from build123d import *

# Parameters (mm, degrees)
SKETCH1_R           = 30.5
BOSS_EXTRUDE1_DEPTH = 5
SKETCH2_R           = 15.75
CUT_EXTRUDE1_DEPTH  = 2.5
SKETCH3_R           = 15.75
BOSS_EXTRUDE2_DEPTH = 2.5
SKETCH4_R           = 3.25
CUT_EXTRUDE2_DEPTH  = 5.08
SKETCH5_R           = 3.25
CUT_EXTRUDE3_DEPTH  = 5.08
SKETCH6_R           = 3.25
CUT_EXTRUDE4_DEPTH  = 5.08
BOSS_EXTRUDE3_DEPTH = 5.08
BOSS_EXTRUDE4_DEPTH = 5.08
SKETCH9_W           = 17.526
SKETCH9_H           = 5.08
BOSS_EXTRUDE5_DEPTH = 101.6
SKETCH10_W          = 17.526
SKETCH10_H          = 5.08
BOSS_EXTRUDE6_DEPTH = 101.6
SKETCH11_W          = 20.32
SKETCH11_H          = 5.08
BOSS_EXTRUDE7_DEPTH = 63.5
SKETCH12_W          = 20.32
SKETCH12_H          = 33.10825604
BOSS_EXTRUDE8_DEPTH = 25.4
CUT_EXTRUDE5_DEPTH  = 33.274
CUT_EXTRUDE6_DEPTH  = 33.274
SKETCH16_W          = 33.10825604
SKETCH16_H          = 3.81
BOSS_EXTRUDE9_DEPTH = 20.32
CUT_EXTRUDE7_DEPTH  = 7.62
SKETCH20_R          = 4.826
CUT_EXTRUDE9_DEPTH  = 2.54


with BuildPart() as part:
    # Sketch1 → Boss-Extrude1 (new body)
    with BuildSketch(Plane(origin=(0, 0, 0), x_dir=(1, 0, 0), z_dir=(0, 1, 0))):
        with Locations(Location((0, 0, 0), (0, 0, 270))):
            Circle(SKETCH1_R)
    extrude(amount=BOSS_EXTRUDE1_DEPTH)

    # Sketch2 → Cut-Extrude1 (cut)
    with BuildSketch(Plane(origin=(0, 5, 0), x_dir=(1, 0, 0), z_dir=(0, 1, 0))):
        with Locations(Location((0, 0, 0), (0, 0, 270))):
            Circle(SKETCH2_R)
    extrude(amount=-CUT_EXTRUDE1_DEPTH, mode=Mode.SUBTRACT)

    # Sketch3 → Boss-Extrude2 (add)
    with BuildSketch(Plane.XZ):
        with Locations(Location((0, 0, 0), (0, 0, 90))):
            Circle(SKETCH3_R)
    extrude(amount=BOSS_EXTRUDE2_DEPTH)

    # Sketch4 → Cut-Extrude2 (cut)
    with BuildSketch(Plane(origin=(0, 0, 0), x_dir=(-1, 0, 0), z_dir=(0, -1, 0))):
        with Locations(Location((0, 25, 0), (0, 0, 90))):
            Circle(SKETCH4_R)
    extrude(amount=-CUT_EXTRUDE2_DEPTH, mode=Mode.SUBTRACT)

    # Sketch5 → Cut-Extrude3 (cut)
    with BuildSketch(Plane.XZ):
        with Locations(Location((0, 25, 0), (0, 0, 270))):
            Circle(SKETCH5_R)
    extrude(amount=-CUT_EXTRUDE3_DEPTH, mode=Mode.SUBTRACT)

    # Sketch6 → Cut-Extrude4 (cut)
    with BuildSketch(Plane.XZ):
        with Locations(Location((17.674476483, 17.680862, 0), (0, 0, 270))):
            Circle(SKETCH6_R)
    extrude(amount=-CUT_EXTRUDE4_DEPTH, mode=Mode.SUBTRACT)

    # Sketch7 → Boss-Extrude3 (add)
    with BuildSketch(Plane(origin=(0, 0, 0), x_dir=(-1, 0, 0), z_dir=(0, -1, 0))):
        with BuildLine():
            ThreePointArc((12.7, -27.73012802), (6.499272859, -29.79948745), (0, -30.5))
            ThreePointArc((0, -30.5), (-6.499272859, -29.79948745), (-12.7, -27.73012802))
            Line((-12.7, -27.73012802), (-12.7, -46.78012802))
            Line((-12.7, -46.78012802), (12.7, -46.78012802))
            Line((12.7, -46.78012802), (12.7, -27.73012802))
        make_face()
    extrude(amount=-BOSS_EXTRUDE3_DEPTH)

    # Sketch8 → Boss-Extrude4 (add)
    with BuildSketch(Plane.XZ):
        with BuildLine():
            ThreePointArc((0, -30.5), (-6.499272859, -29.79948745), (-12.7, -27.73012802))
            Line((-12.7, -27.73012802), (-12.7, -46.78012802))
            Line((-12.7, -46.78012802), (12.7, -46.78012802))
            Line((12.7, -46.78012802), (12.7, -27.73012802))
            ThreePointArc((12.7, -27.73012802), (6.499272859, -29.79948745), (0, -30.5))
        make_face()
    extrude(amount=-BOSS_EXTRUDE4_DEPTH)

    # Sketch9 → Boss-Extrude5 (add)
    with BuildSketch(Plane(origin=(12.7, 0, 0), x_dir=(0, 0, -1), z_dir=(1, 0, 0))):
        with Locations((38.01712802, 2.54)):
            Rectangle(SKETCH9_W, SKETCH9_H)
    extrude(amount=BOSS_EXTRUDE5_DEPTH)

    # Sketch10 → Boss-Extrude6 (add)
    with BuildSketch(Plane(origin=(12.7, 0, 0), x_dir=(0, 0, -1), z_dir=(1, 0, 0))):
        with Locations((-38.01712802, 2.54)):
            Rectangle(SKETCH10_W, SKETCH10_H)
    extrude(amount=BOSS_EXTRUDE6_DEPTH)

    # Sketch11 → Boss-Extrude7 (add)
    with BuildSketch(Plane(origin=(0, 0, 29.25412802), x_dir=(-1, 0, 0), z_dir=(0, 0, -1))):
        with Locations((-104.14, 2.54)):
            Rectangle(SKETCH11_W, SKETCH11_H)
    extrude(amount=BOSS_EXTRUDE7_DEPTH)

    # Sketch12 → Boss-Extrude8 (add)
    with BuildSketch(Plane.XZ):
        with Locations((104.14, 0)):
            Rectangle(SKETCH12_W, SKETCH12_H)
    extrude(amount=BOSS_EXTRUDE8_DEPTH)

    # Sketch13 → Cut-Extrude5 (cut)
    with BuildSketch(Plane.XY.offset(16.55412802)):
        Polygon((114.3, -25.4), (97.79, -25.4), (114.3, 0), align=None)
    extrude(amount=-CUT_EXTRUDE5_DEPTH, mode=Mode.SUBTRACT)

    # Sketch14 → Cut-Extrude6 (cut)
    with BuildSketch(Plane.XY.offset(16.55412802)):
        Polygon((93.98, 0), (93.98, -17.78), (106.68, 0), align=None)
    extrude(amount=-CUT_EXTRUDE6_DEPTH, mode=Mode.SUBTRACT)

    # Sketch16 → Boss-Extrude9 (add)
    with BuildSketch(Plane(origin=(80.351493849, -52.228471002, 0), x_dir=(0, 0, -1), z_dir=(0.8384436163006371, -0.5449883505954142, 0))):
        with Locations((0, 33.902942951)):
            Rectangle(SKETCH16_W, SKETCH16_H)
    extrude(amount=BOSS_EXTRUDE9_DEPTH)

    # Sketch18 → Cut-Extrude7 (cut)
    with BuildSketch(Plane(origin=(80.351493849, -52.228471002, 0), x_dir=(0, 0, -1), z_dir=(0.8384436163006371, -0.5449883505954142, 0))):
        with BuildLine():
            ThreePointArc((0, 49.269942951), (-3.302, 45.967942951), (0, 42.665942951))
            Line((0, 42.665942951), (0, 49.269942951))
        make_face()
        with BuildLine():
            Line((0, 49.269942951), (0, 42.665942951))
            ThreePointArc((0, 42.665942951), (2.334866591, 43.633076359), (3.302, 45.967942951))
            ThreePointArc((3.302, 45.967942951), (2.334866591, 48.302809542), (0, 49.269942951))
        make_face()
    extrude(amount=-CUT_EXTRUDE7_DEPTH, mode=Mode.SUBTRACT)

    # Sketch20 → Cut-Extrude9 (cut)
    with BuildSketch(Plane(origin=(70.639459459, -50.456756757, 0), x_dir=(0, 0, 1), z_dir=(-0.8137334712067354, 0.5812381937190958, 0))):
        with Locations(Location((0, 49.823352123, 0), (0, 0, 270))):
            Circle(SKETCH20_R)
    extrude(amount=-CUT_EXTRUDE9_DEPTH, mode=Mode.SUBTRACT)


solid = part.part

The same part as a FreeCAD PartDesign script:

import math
import FreeCAD as App
import Part
import Sketcher
from FreeCAD import Vector
Q = App.Units.Quantity


def add_polygon(sketch, points):
    """Adds a closed chain of lines whose ends are joined by coincident constraints."""
    first, n = sketch.GeometryCount, len(points)
    for a, b in zip(points, points[1:] + points[:1]):
        sketch.addGeometry(Part.LineSegment(App.Vector(*a, 0), App.Vector(*b, 0)), False)
    for i in range(n):
        sketch.addConstraint(Sketcher.Constraint("Coincident", first + i, 2, first + (i + 1) % n, 1))

doc = App.newDocument("Part")
params = doc.addObject("Spreadsheet::Sheet", "Params")
for row, (alias, value) in enumerate([
    ("pad1_length", "5 mm"),
    ("pocket1_length", "2.5 mm"),
    ("pad2_length", "2.5 mm"),
    ("pocket2_length", "0.2 in"),
    ("pocket3_length", "0.2 in"),
    ("pocket4_length", "0.2 in"),
    ("sketch7_width", "1 in"),
    ("sketch7_height", "0.75 in"),
    ("pad3_length", "0.2 in"),
    ("sketch8_width", "1 in"),
    ("sketch8_height", "0.75 in"),
    ("pad4_length", "0.2 in"),
    ("sketch9_width", "0.2 in"),
    ("sketch9_height", "0.69 in"),
    ("pad5_length", "4 in"),
    ("sketch10_width", "0.2 in"),
    ("sketch10_height", "0.69 in"),
    ("pad6_length", "4 in"),
    ("sketch11_width", "0.8 in"),
    ("sketch11_height", "0.2 in"),
    ("pad7_length", "2.5 in"),
    ("sketch12_width", "0.8 in"),
    ("pad8_length", "1 in"),
    ("sketch13_height", "1 in"),
    ("sketch13_width", "0.65 in"),
    ("pocket5_length", "1.31 in"),
    ("sketch14_width", "0.5 in"),
    ("sketch14_height", "0.7 in"),
    ("pocket6_length", "1.31 in"),
    ("sketch15_height", "0.15 in"),
    ("pad9_length", "0.8 in"),
    ("sketch16_radius", "0.13 in"),
    ("pocket7_length", "0.3 in"),
    ("sketch17_diameter", "0.38 in"),
    ("pocket8_length", "0.1 in"),
], start=1):
    params.set(f"A{row}", alias)
    params.set(f"B{row}", "=" + value)
    params.setAlias(f"B{row}", alias)

body = doc.addObject("PartDesign::Body", "Body")

# Sketch on XZ plane
sketch1 = body.newObject("Sketcher::SketchObject", "Sketch")
sketch1.AttachmentSupport = (doc.getObject("XZ_Plane"), [""])
sketch1.MapMode = "FlatFace"
sketch1.addGeometry(Part.Circle(Vector(0, 0, 0), Vector(0, 0, 1), 30.5), False)
sketch1.addConstraint([
    Sketcher.Constraint("Coincident", 0, 3, -1, 1),
    Sketcher.Constraint("Diameter", 0, Q("61 mm")),
])
pad1 = body.newObject("PartDesign::Pad", "Pad")
pad1.Profile = sketch1
pad1.setExpression("Length", "Params.pad1_length")
pad1.Reversed = True

# Sketch on XZ plane
sketch2 = body.newObject("Sketcher::SketchObject", "Sketch001")
sketch2.AttachmentSupport = (doc.getObject("XZ_Plane"), [""])
sketch2.MapMode = "FlatFace"
sketch2.AttachmentOffset = App.Placement(Vector(0, 0, -5), App.Rotation())
sketch2.addGeometry(Part.Circle(Vector(0, 0, 0), Vector(0, 0, 1), 15.75), False)
sketch2.addConstraint([
    Sketcher.Constraint("Coincident", 0, 3, -1, 1),
    Sketcher.Constraint("Diameter", 0, Q("31.5 mm")),
])
pocket1 = body.newObject("PartDesign::Pocket", "Pocket")
pocket1.Profile = sketch2
pocket1.setExpression("Length", "Params.pocket1_length")
pocket1.Reversed = True

# Sketch on XZ plane
sketch3 = body.newObject("Sketcher::SketchObject", "Sketch002")
sketch3.AttachmentSupport = (doc.getObject("XZ_Plane"), [""])
sketch3.MapMode = "FlatFace"
sketch3.addGeometry(Part.Circle(Vector(0, 0, 0), Vector(0, 0, 1), 15.75), False)
sketch3.addConstraint([
    Sketcher.Constraint("Coincident", 0, 3, -1, 1),
    Sketcher.Constraint("Diameter", 0, Q("31.5 mm")),
])
pad2 = body.newObject("PartDesign::Pad", "Pad001")
pad2.Profile = sketch3
pad2.setExpression("Length", "Params.pad2_length")

# Sketch on XZ plane
sketch4 = body.newObject("Sketcher::SketchObject", "Sketch003")
sketch4.AttachmentSupport = (doc.getObject("XZ_Plane"), [""])
sketch4.MapMode = "FlatFace"
sketch4.addGeometry(Part.Circle(Vector(0, -25, 0), Vector(0, 0, 1), 3.25), False)
sketch4.addConstraint([
    Sketcher.Constraint("PointOnObject", 0, 3, -2),
    Sketcher.Constraint("Diameter", 0, Q("6.5 mm")),
    Sketcher.Constraint("DistanceY", 0, 3, -1, 1, Q("25 mm")),
])
pocket2 = body.newObject("PartDesign::Pocket", "Pocket001")
pocket2.Profile = sketch4
pocket2.setExpression("Length", "Params.pocket2_length")

# Sketch on XZ plane
sketch5 = body.newObject("Sketcher::SketchObject", "Sketch004")
sketch5.AttachmentSupport = (doc.getObject("XZ_Plane"), [""])
sketch5.MapMode = "FlatFace"
sketch5.addGeometry(Part.Circle(Vector(0, 25, 0), Vector(0, 0, 1), 3.25), False)
sketch5.addConstraint([
    Sketcher.Constraint("PointOnObject", 0, 3, -2),
    Sketcher.Constraint("Diameter", 0, Q("6.5 mm")),
    Sketcher.Constraint("DistanceY", -1, 1, 0, 3, Q("25 mm")),
])
pocket3 = body.newObject("PartDesign::Pocket", "Pocket002")
pocket3.Profile = sketch5
pocket3.setExpression("Length", "Params.pocket3_length")

# Sketch on XZ plane
sketch6 = body.newObject("Sketcher::SketchObject", "Sketch005")
sketch6.AttachmentSupport = (doc.getObject("XZ_Plane"), [""])
sketch6.MapMode = "FlatFace"
sketch6.addGeometry(Part.Circle(Vector(17.674476, 17.680862, 0), Vector(0, 0, 1), 3.25), False)
sketch6.addConstraint([
    Sketcher.Constraint("Diameter", 0, Q("6.5 mm")),
    Sketcher.Constraint("DistanceX", -1, 1, 0, 3, Q("17.674476 mm")),
    Sketcher.Constraint("DistanceY", -1, 1, 0, 3, Q("17.680862 mm")),
])
pocket4 = body.newObject("PartDesign::Pocket", "Pocket003")
pocket4.Profile = sketch6
pocket4.setExpression("Length", "Params.pocket4_length")

# Sketch on XZ plane
sketch7 = body.newObject("Sketcher::SketchObject", "Sketch006")
sketch7.AttachmentSupport = (doc.getObject("XZ_Plane"), [""])
sketch7.MapMode = "FlatFace"
sketch7.addGeometry([
    Part.ArcOfCircle(Part.Circle(Vector(0, 0, 0), Vector(0, 0, 1), 30.5), math.radians(90), math.radians(114.607099)),  # 0
    Part.ArcOfCircle(Part.Circle(Vector(0, 0, 0), Vector(0, 0, 1), 30.5), math.radians(65.392901), math.radians(90)),  # 1
    Part.LineSegment(Vector(12.7, 27.730128, 0), Vector(12.7, 46.780128, 0)),  # 2
    Part.LineSegment(Vector(12.7, 46.780128, 0), Vector(-12.7, 46.780128, 0)),  # 3
    Part.LineSegment(Vector(-12.7, 46.780128, 0), Vector(-12.7, 27.730128, 0)),  # 4
], False)
sketch7.addConstraint([
    Sketcher.Constraint("Tangent", 0, 1, 1, 2),
    Sketcher.Constraint("Coincident", 1, 1, 2, 1),
    Sketcher.Constraint("Coincident", 2, 2, 3, 1),
    Sketcher.Constraint("Coincident", 3, 2, 4, 1),
    Sketcher.Constraint("Coincident", 4, 2, 0, 2),
    Sketcher.Constraint("Vertical", 2),
    Sketcher.Constraint("Horizontal", 3),
    Sketcher.Constraint("Vertical", 4),
    Sketcher.Constraint("Coincident", 0, 3, -1, 1),
    Sketcher.Constraint("Equal", 0, 1),
    Sketcher.Constraint("PointOnObject", 0, 1, -2),
    Sketcher.Constraint("Horizontal", 1, 1, 4, 2),
    Sketcher.Constraint("DistanceX", 3, 2, 3, 1, Q("1 in")),
    Sketcher.Constraint("DistanceY", 2, 1, 2, 2, Q("0.75 in")),
    Sketcher.Constraint("Radius", 0, Q("30.5 mm")),
])
sketch7.setExpression("Constraints[12]", "Params.sketch7_width")
sketch7.setExpression("Constraints[13]", "Params.sketch7_height")
pad3 = body.newObject("PartDesign::Pad", "Pad002")
pad3.Profile = sketch7
pad3.setExpression("Length", "Params.pad3_length")
pad3.Reversed = True

# Sketch on XZ plane
sketch8 = body.newObject("Sketcher::SketchObject", "Sketch007")
sketch8.AttachmentSupport = (doc.getObject("XZ_Plane"), [""])
sketch8.MapMode = "FlatFace"
sketch8.addGeometry([
    Part.ArcOfCircle(Part.Circle(Vector(0, 0, 0), Vector(0, 0, 1), 30.5), math.radians(-114.607099), math.radians(-90)),  # 0
    Part.LineSegment(Vector(-12.7, -27.730128, 0), Vector(-12.7, -46.780128, 0)),  # 1
    Part.LineSegment(Vector(-12.7, -46.780128, 0), Vector(12.7, -46.780128, 0)),  # 2
    Part.LineSegment(Vector(12.7, -46.780128, 0), Vector(12.7, -27.730128, 0)),  # 3
    Part.ArcOfCircle(Part.Circle(Vector(0, 0, 0), Vector(0, 0, 1), 30.5), math.radians(-90), math.radians(-65.392901)),  # 4
], False)
sketch8.addConstraint([
    Sketcher.Constraint("Coincident", 0, 1, 1, 1),
    Sketcher.Constraint("Coincident", 1, 2, 2, 1),
    Sketcher.Constraint("Coincident", 2, 2, 3, 1),
    Sketcher.Constraint("Coincident", 3, 2, 4, 2),
    Sketcher.Constraint("Tangent", 4, 1, 0, 2),
    Sketcher.Constraint("Vertical", 1),
    Sketcher.Constraint("Horizontal", 2),
    Sketcher.Constraint("Vertical", 3),
    Sketcher.Constraint("Coincident", 0, 3, -1, 1),
    Sketcher.Constraint("Equal", 0, 4),
    Sketcher.Constraint("PointOnObject", 4, 1, -2),
    Sketcher.Constraint("Horizontal", 0, 1, 3, 2),
    Sketcher.Constraint("DistanceX", 2, 1, 2, 2, Q("1 in")),
    Sketcher.Constraint("DistanceY", 1, 2, 1, 1, Q("0.75 in")),
    Sketcher.Constraint("Radius", 0, Q("30.5 mm")),
])
sketch8.setExpression("Constraints[12]", "Params.sketch8_width")
sketch8.setExpression("Constraints[13]", "Params.sketch8_height")
pad4 = body.newObject("PartDesign::Pad", "Pad003")
pad4.Profile = sketch8
pad4.setExpression("Length", "Params.pad4_length")
pad4.Reversed = True

# Sketch on YZ plane
sketch9 = body.newObject("Sketcher::SketchObject", "Sketch008")
sketch9.AttachmentSupport = (doc.getObject("YZ_Plane"), [""])
sketch9.MapMode = "FlatFace"
sketch9.AttachmentOffset = App.Placement(Vector(0, 0, 0.5 * 25.4), App.Rotation())
add_polygon(sketch9, [(5.08, -29.254128), (0, -29.254128), (0, -46.780128), (5.08, -46.780128)])  # lines 0-3
sketch9.addConstraint([
    Sketcher.Constraint("Horizontal", 0),
    Sketcher.Constraint("Vertical", 1),
    Sketcher.Constraint("Horizontal", 2),
    Sketcher.Constraint("Vertical", 3),
    Sketcher.Constraint("PointOnObject", 0, 2, -2),
    Sketcher.Constraint("DistanceX", 0, 2, 0, 1, Q("0.2 in")),
    Sketcher.Constraint("DistanceY", 1, 2, 1, 1, Q("0.69 in")),
    Sketcher.Constraint("DistanceY", 0, 2, -1, 1, Q("29.254128 mm")),
])
sketch9.setExpression("Constraints[9]", "Params.sketch9_width")
sketch9.setExpression("Constraints[10]", "Params.sketch9_height")
pad5 = body.newObject("PartDesign::Pad", "Pad004")
pad5.Profile = sketch9
pad5.setExpression("Length", "Params.pad5_length")

# Sketch on YZ plane
sketch10 = body.newObject("Sketcher::SketchObject", "Sketch009")
sketch10.AttachmentSupport = (doc.getObject("YZ_Plane"), [""])
sketch10.MapMode = "FlatFace"
sketch10.AttachmentOffset = App.Placement(Vector(0, 0, 0.5 * 25.4), App.Rotation())
add_polygon(sketch10, [(5.08, 46.780128), (0, 46.780128), (0, 29.254128), (5.08, 29.254128)])  # lines 0-3
sketch10.addConstraint([
    Sketcher.Constraint("Horizontal", 0),
    Sketcher.Constraint("Vertical", 1),
    Sketcher.Constraint("Horizontal", 2),
    Sketcher.Constraint("Vertical", 3),
    Sketcher.Constraint("PointOnObject", 0, 2, -2),
    Sketcher.Constraint("DistanceX", 0, 2, 0, 1, Q("0.2 in")),
    Sketcher.Constraint("DistanceY", 1, 2, 1, 1, Q("0.69 in")),
    Sketcher.Constraint("DistanceY", -1, 1, 0, 2, Q("46.780128 mm")),
])
sketch10.setExpression("Constraints[9]", "Params.sketch10_width")
sketch10.setExpression("Constraints[10]", "Params.sketch10_height")
pad6 = body.newObject("PartDesign::Pad", "Pad005")
pad6.Profile = sketch10
pad6.setExpression("Length", "Params.pad6_length")

# Sketch on XY plane
sketch11 = body.newObject("Sketcher::SketchObject", "Sketch010")
sketch11.AttachmentSupport = (doc.getObject("XY_Plane"), [""])
sketch11.MapMode = "FlatFace"
sketch11.AttachmentOffset = App.Placement(Vector(0, 0, 29.254128), App.Rotation())
add_polygon(sketch11, [(114.3, 5.08), (114.3, 0), (93.98, 0), (93.98, 5.08)])  # lines 0-3
sketch11.addConstraint([
    Sketcher.Constraint("Vertical", 0),
    Sketcher.Constraint("Horizontal", 1),
    Sketcher.Constraint("Vertical", 2),
    Sketcher.Constraint("Horizontal", 3),
    Sketcher.Constraint("PointOnObject", 0, 2, -1),
    Sketcher.Constraint("DistanceX", 1, 2, 1, 1, Q("0.8 in")),
    Sketcher.Constraint("DistanceY", 0, 2, 0, 1, Q("0.2 in")),
    Sketcher.Constraint("DistanceX", -1, 1, 0, 2, Q("4.5 in")),
])
sketch11.setExpression("Constraints[9]", "Params.sketch11_width")
sketch11.setExpression("Constraints[10]", "Params.sketch11_height")
pad7 = body.newObject("PartDesign::Pad", "Pad006")
pad7.Profile = sketch11
pad7.setExpression("Length", "Params.pad7_length")
pad7.Reversed = True

# Sketch on XZ plane
sketch12 = body.newObject("Sketcher::SketchObject", "Sketch011")
sketch12.AttachmentSupport = (doc.getObject("XZ_Plane"), [""])
sketch12.MapMode = "FlatFace"
add_polygon(sketch12, [(93.98, 16.554128), (93.98, -16.554128), (114.3, -16.554128), (114.3, 16.554128)])  # lines 0-3
sketch12.addConstraint([
    Sketcher.Constraint("Vertical", 0),
    Sketcher.Constraint("Horizontal", 1),
    Sketcher.Constraint("Vertical", 2),
    Sketcher.Constraint("Horizontal", 3),
    Sketcher.Constraint("DistanceX", 1, 1, 1, 2, Q("0.8 in")),
    Sketcher.Constraint("DistanceX", -1, 1, 0, 2, Q("3.7 in")),
    Sketcher.Constraint("DistanceY", 0, 2, 0, 1, Q("33.108256 mm")),
    Sketcher.Constraint("DistanceY", 0, 2, -1, 1, Q("16.554128 mm")),
])
sketch12.setExpression("Constraints[8]", "Params.sketch12_width")
pad8 = body.newObject("PartDesign::Pad", "Pad007")
pad8.Profile = sketch12
pad8.setExpression("Length", "Params.pad8_length")

# Sketch on XY plane
sketch13 = body.newObject("Sketcher::SketchObject", "Sketch012")
sketch13.AttachmentSupport = (doc.getObject("XY_Plane"), [""])
sketch13.MapMode = "FlatFace"
sketch13.AttachmentOffset = App.Placement(Vector(0, 0, 16.554128), App.Rotation())
add_polygon(sketch13, [(97.79, -25.4), (114.3, -25.4), (114.3, 0)])  # lines 0-2
sketch13.addConstraint([
    Sketcher.Constraint("Horizontal", 0),
    Sketcher.Constraint("Vertical", 1),
    Sketcher.Constraint("PointOnObject", 1, 2, -1),
    Sketcher.Constraint("DistanceY", 1, 1, 1, 2, Q("1 in")),
    Sketcher.Constraint("DistanceX", 0, 1, 0, 2, Q("0.65 in")),
    Sketcher.Constraint("DistanceX", -1, 1, 0, 2, Q("4.5 in")),
])
sketch13.setExpression("Constraints[6]", "Params.sketch13_height")
sketch13.setExpression("Constraints[7]", "Params.sketch13_width")
pocket5 = body.newObject("PartDesign::Pocket", "Pocket004")
pocket5.Profile = sketch13
pocket5.setExpression("Length", "Params.pocket5_length")

# Sketch on XY plane
sketch14 = body.newObject("Sketcher::SketchObject", "Sketch013")
sketch14.AttachmentSupport = (doc.getObject("XY_Plane"), [""])
sketch14.MapMode = "FlatFace"
sketch14.AttachmentOffset = App.Placement(Vector(0, 0, 16.554128), App.Rotation())
add_polygon(sketch14, [(93.98, 0), (93.98, -17.78), (106.68, 0)])  # lines 0-2
sketch14.addConstraint([
    Sketcher.Constraint("Vertical", 0),
    Sketcher.Constraint("Horizontal", 2),
    Sketcher.Constraint("PointOnObject", 1, 2, -1),
    Sketcher.Constraint("DistanceX", 2, 2, 2, 1, Q("0.5 in")),
    Sketcher.Constraint("DistanceY", 0, 2, 0, 1, Q("0.7 in")),
    Sketcher.Constraint("DistanceX", -1, 1, 0, 2, Q("3.7 in")),
])
sketch14.setExpression("Constraints[6]", "Params.sketch14_width")
sketch14.setExpression("Constraints[7]", "Params.sketch14_height")
pocket6 = body.newObject("PartDesign::Pocket", "Pocket005")
pocket6.Profile = sketch14
pocket6.setExpression("Length", "Params.pocket6_length")

# Sketch on an angled plane
sketch15 = body.newObject("Sketcher::SketchObject", "Sketch014")
sketch15.Placement = App.Placement(Vector(80.351494, -52.228471, 0), App.Rotation(Vector(0, 0, -1), Vector(0.544988351, 0.838443616, 0), Vector(0.838443616, -0.544988351, 0), "ZXY"))
add_polygon(sketch15, [(-16.554128, 35.807943), (-16.554128, 31.997943), (16.554128, 31.997943), (16.554128, 35.807943)])  # lines 0-3
sketch15.addConstraint([
    Sketcher.Constraint("Vertical", 0),
    Sketcher.Constraint("Horizontal", 1),
    Sketcher.Constraint("Vertical", 2),
    Sketcher.Constraint("Horizontal", 3),
    Sketcher.Constraint("DistanceY", 0, 2, 0, 1, Q("0.15 in")),
    Sketcher.Constraint("DistanceX", 1, 1, 1, 2, Q("33.108256 mm")),
    Sketcher.Constraint("DistanceX", 0, 2, -1, 1, Q("16.554128 mm")),
    Sketcher.Constraint("DistanceY", -1, 1, 0, 2, Q("31.997943 mm")),
])
sketch15.setExpression("Constraints[8]", "Params.sketch15_height")
pad9 = body.newObject("PartDesign::Pad", "Pad008")
pad9.Profile = sketch15
pad9.setExpression("Length", "Params.pad9_length")

# Sketch on an angled plane
sketch16 = body.newObject("Sketcher::SketchObject", "Sketch015")
sketch16.Placement = App.Placement(Vector(80.351494, -52.228471, 0), App.Rotation(Vector(0, 0, -1), Vector(0.544988351, 0.838443616, 0), Vector(0.838443616, -0.544988351, 0), "ZXY"))
sketch16.addGeometry([
    Part.ArcOfCircle(Part.Circle(Vector(0, 45.967943, 0), Vector(0, 0, 1), 3.302), math.radians(90), math.radians(270)),
    Part.ArcOfCircle(Part.Circle(Vector(0, 45.967943, 0), Vector(0, 0, 1), 3.302), math.radians(-90), math.radians(0)),
    Part.ArcOfCircle(Part.Circle(Vector(0, 45.967943, 0), Vector(0, 0, 1), 3.302), math.radians(0), math.radians(90)),
], False)
sketch16.addConstraint([
    Sketcher.Constraint("Tangent", 0, 2, 1, 1),
    Sketcher.Constraint("Tangent", 1, 2, 2, 1),
    Sketcher.Constraint("Tangent", 2, 2, 0, 1),
    Sketcher.Constraint("PointOnObject", 0, 3, -2),
    Sketcher.Constraint("PointOnObject", 0, 2, -2),
    Sketcher.Constraint("PointOnObject", 2, 2, -2),
    Sketcher.Constraint("Horizontal", 2, 3, 1, 2),
    Sketcher.Constraint("Radius", 0, Q("0.13 in")),
    Sketcher.Constraint("DistanceY", -1, 1, 0, 3, Q("45.967943 mm")),
])
sketch16.setExpression("Constraints[7]", "Params.sketch16_radius")
pocket7 = body.newObject("PartDesign::Pocket", "Pocket006")
pocket7.Profile = sketch16
pocket7.setExpression("Length", "Params.pocket7_length")

# Sketch on an angled plane
sketch17 = body.newObject("Sketcher::SketchObject", "Sketch016")
sketch17.Placement = App.Placement(Vector(70.639459, -50.456757, 0), App.Rotation(Vector(0, 0, 1), Vector(0.581238194, 0.813733471, 0), Vector(-0.813733471, 0.581238194, 0), "ZXY"))
sketch17.addGeometry(Part.Circle(Vector(0, 49.823352, 0), Vector(0, 0, 1), 4.826), False)
sketch17.addConstraint([
    Sketcher.Constraint("PointOnObject", 0, 3, -2),
    Sketcher.Constraint("Diameter", 0, Q("0.38 in")),
    Sketcher.Constraint("DistanceY", -1, 1, 0, 3, Q("49.823352 mm")),
])
sketch17.setExpression("Constraints[1]", "Params.sketch17_diameter")
pocket8 = body.newObject("PartDesign::Pocket", "Pocket007")
pocket8.Profile = sketch17
pocket8.setExpression("Length", "Params.pocket8_length")

doc.recompute()
